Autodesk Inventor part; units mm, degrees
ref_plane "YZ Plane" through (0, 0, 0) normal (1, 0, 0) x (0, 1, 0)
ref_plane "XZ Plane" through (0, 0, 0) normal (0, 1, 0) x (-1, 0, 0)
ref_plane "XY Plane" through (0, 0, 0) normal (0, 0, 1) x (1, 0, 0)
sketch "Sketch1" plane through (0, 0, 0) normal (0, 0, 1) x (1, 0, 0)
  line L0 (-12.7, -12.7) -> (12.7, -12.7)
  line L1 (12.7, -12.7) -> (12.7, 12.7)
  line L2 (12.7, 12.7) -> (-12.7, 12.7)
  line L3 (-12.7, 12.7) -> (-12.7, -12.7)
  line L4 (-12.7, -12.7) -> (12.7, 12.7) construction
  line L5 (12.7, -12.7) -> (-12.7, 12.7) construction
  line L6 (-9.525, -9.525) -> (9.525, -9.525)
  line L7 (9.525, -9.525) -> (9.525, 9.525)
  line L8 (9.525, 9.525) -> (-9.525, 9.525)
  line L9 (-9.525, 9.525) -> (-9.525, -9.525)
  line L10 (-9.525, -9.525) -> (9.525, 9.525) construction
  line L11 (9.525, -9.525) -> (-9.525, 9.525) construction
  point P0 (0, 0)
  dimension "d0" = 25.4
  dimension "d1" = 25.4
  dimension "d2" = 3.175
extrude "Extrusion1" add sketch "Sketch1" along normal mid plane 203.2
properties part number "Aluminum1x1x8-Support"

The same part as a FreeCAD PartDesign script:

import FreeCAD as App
import Part
import Sketcher
Q = App.Units.Quantity

doc = App.newDocument("Part")
body = doc.addObject("PartDesign::Body", "Body")

# Sketch on XY plane
sketch1 = body.newObject("Sketcher::SketchObject", "Sketch")
sketch1.AttachmentSupport = (doc.getObject("XY_Plane"), [""])
sketch1.MapMode = "FlatFace"
sketch1.addGeometry(Part.LineSegment(App.Vector(-12.7, 12.7, 0), App.Vector(-12.7, -12.7, 0)), False)
sketch1.addGeometry(Part.LineSegment(App.Vector(-12.7, -12.7, 0), App.Vector(12.7, -12.7, 0)), False)
sketch1.addGeometry(Part.LineSegment(App.Vector(12.7, -12.7, 0), App.Vector(12.7, 12.7, 0)), False)
sketch1.addGeometry(Part.LineSegment(App.Vector(12.7, 12.7, 0), App.Vector(-12.7, 12.7, 0)), False)
sketch1.addGeometry(Part.LineSegment(App.Vector(9.525, -9.525, 0), App.Vector(-9.525, -9.525, 0)), False)
sketch1.addGeometry(Part.LineSegment(App.Vector(-9.525, -9.525, 0), App.Vector(-9.525, 9.525, 0)), False)
sketch1.addGeometry(Part.LineSegment(App.Vector(-9.525, 9.525, 0), App.Vector(9.525, 9.525, 0)), False)
sketch1.addGeometry(Part.LineSegment(App.Vector(9.525, 9.525, 0), App.Vector(9.525, -9.525, 0)), False)
sketch1.addConstraint(Sketcher.Constraint("Coincident", 0, 2, 1, 1))
sketch1.addConstraint(Sketcher.Constraint("Coincident", 1, 2, 2, 1))
sketch1.addConstraint(Sketcher.Constraint("Coincident", 2, 2, 3, 1))
sketch1.addConstraint(Sketcher.Constraint("Coincident", 3, 2, 0, 1))
sketch1.addConstraint(Sketcher.Constraint("Coincident", 4, 2, 5, 1))
sketch1.addConstraint(Sketcher.Constraint("Coincident", 5, 2, 6, 1))
sketch1.addConstraint(Sketcher.Constraint("Coincident", 6, 2, 7, 1))
sketch1.addConstraint(Sketcher.Constraint("Coincident", 7, 2, 4, 1))
sketch1.addConstraint(Sketcher.Constraint("Vertical", 0))
sketch1.addConstraint(Sketcher.Constraint("Horizontal", 1))
sketch1.addConstraint(Sketcher.Constraint("Vertical", 2))
sketch1.addConstraint(Sketcher.Constraint("Horizontal", 3))
sketch1.addConstraint(Sketcher.Constraint("Horizontal", 4))
sketch1.addConstraint(Sketcher.Constraint("Vertical", 5))
sketch1.addConstraint(Sketcher.Constraint("Horizontal", 6))
sketch1.addConstraint(Sketcher.Constraint("Vertical", 7))
sketch1.addConstraint(Sketcher.Constraint("Symmetric", 0, 2, 2, 2, -1, 1))
sketch1.addConstraint(Sketcher.Constraint("Symmetric", 4, 2, 6, 2, -1, 1))
sketch1.addConstraint(Sketcher.Constraint("Equal", 3, 0))
sketch1.addConstraint(Sketcher.Constraint("Equal", 6, 5))
sketch1.addConstraint(Sketcher.Constraint("DistanceX", 1, 1, 1, 2, Q("1 in")))
sketch1.addConstraint(Sketcher.Constraint("DistanceX", 0, 2, 4, 2, Q("0.125 in")))
pad1 = body.newObject("PartDesign::Pad", "Pad")
pad1.Profile = sketch1
pad1.Length = Q("8 in")
pad1.Midplane = True

doc.recompute()
